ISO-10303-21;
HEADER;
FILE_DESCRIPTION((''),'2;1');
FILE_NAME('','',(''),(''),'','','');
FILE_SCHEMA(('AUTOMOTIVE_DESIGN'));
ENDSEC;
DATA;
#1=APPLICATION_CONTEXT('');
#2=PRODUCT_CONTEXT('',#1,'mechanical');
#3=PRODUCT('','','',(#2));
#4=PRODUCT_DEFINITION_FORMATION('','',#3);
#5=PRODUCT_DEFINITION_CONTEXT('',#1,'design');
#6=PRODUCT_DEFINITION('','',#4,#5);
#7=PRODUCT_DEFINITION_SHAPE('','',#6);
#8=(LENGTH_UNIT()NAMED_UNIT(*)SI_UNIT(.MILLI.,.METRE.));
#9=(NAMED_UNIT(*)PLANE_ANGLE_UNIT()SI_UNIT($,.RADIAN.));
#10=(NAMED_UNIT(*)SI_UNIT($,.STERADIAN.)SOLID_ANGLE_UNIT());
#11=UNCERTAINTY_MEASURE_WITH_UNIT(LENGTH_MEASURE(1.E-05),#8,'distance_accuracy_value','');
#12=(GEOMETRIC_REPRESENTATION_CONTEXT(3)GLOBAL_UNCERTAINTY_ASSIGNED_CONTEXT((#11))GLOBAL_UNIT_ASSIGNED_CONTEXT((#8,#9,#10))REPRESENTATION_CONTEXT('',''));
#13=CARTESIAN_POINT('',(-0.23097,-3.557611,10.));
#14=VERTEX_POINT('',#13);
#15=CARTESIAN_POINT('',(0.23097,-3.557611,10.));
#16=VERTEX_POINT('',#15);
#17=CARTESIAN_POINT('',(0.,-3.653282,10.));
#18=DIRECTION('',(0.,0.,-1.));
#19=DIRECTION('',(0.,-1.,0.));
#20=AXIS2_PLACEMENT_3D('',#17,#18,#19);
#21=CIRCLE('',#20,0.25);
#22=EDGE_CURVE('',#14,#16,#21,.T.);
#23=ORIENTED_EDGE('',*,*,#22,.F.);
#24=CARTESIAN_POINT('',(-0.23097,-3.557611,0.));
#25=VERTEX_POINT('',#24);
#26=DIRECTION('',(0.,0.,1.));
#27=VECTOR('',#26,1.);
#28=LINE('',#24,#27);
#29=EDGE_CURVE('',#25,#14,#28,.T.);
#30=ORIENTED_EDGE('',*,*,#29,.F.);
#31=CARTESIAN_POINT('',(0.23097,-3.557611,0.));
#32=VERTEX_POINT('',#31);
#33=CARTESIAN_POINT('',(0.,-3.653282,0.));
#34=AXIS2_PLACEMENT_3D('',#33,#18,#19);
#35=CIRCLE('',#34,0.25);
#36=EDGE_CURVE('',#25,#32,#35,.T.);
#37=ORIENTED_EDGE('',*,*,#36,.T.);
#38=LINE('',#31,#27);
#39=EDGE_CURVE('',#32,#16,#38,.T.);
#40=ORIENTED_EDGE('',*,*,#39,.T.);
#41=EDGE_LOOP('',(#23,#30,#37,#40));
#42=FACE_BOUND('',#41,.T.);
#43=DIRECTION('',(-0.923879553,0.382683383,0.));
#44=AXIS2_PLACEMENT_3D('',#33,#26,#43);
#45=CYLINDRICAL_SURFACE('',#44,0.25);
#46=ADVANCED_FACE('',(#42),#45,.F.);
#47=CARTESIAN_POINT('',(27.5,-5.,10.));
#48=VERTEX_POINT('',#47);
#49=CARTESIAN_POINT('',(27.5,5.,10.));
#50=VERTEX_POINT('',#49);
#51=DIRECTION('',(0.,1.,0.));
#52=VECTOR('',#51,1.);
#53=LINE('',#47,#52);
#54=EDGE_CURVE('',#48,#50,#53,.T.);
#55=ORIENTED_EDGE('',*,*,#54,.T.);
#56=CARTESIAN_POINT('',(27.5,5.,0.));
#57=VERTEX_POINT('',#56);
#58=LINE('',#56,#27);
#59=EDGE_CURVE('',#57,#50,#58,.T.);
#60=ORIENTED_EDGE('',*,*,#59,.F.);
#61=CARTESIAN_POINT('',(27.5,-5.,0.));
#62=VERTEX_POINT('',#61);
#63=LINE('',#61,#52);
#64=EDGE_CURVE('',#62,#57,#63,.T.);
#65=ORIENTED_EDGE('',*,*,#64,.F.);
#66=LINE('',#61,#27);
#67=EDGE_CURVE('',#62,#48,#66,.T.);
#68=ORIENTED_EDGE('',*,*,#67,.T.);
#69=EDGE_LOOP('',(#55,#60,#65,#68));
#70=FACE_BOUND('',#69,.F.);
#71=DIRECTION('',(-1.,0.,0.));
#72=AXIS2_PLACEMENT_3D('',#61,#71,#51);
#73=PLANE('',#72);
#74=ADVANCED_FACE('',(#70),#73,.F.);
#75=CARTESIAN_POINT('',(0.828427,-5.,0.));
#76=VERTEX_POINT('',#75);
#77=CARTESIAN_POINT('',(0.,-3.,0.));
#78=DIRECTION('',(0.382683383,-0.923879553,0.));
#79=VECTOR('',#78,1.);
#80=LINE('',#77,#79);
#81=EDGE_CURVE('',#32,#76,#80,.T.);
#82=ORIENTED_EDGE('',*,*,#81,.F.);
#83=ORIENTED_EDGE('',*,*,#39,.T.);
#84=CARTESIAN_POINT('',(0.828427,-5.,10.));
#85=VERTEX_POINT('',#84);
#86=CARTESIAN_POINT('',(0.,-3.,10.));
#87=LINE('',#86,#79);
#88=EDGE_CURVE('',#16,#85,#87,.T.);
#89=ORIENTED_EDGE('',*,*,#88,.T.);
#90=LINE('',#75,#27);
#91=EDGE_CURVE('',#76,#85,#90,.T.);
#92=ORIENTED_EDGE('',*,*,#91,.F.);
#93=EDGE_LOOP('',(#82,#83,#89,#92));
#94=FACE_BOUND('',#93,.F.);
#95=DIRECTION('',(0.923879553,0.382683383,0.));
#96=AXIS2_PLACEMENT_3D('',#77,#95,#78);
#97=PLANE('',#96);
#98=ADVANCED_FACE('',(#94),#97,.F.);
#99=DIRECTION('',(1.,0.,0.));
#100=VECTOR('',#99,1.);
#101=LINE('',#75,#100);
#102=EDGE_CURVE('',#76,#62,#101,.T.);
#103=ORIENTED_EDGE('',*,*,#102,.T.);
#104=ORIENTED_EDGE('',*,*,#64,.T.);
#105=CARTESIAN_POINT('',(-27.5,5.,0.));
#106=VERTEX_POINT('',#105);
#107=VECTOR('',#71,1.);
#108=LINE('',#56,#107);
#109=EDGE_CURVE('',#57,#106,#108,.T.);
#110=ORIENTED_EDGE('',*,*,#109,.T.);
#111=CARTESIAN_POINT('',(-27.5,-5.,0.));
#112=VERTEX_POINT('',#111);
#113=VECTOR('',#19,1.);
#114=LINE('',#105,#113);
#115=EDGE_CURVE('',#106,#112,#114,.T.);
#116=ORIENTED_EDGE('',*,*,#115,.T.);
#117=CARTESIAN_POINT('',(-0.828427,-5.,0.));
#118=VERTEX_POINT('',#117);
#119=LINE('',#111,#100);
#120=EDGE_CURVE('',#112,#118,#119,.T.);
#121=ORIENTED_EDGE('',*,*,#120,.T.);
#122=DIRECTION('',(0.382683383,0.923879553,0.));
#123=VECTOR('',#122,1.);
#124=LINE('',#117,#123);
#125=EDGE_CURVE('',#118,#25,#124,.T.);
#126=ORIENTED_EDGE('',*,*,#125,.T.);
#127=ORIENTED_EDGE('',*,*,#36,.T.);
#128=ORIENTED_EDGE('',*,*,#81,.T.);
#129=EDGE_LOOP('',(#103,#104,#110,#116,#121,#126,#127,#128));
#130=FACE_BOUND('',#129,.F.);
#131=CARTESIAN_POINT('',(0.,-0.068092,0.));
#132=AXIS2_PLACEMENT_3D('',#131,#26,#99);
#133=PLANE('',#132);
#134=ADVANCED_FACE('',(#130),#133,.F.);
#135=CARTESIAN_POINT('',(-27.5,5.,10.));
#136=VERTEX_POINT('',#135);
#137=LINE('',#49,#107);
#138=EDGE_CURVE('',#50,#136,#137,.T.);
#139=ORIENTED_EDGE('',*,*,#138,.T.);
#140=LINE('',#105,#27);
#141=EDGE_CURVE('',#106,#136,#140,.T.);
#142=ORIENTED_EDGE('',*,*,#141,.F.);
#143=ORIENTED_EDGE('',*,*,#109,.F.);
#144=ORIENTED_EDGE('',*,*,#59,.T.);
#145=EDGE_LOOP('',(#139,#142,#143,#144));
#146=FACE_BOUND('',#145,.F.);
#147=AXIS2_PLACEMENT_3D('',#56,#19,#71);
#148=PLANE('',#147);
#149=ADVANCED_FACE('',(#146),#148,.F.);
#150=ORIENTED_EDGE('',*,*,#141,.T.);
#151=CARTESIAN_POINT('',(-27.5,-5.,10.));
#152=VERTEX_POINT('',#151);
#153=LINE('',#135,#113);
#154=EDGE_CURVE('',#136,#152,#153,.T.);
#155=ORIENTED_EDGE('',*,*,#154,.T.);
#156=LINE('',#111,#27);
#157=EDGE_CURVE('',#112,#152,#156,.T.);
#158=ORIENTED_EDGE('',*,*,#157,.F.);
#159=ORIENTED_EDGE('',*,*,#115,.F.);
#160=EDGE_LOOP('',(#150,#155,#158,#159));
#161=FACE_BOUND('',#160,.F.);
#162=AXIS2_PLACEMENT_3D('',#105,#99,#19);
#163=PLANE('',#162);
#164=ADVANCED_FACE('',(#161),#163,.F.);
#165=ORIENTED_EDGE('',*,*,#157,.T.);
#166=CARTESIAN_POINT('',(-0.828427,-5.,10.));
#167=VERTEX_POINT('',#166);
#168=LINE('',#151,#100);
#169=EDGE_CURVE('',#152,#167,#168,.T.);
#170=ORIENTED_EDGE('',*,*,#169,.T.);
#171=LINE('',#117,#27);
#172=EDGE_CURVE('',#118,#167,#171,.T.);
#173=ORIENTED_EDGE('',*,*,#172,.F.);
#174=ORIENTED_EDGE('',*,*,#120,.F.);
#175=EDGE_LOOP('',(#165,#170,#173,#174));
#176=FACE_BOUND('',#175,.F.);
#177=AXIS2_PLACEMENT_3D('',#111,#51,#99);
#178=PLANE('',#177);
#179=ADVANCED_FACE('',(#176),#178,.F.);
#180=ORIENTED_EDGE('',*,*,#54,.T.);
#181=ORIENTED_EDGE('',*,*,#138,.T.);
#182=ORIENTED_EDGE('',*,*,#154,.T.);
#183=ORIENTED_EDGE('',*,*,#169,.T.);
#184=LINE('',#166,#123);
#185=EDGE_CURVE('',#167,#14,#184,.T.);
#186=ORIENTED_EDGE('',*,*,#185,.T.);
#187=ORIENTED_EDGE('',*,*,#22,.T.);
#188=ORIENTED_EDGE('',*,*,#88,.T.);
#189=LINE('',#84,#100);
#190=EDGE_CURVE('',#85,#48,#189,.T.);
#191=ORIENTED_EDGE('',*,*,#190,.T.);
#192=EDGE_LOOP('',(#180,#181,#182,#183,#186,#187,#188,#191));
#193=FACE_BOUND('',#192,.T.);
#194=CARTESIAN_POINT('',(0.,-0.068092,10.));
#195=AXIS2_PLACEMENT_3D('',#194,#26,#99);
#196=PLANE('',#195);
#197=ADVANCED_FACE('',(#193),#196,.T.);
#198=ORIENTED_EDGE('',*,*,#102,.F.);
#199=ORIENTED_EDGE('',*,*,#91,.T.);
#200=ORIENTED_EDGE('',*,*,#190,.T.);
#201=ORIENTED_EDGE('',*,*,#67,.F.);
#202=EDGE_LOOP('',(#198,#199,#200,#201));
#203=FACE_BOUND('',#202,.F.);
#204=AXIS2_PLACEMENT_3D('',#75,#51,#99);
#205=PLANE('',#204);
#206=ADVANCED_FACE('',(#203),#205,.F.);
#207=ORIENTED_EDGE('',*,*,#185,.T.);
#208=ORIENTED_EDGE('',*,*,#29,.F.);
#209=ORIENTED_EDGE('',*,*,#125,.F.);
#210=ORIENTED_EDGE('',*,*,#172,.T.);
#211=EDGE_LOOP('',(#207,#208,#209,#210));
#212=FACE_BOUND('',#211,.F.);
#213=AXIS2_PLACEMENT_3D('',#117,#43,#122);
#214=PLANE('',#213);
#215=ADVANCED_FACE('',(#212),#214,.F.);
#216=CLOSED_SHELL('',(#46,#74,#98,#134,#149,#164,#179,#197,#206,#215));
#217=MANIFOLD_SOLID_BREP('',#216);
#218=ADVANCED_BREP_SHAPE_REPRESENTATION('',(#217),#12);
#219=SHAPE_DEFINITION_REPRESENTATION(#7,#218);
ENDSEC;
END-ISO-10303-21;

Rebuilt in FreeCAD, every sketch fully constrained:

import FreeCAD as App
import Part
import Sketcher
Q = App.Units.Quantity


def edges_at(feature, points):
    """Names of the edges that pass closest to the given points."""
    edges = feature.Shape.Edges
    near = lambda p: min(range(len(edges)), key=lambda i: edges[i].distToShape(Part.Vertex(*p))[0])
    return sorted({f"Edge{near(p) + 1}" for p in points})


def add_polygon(sketch, points):
    """Adds a closed chain of lines whose ends are joined by coincident constraints."""
    first, n = sketch.GeometryCount, len(points)
    for a, b in zip(points, points[1:] + points[:1]):
        sketch.addGeometry(Part.LineSegment(App.Vector(*a, 0), App.Vector(*b, 0)), False)
    for i in range(n):
        sketch.addConstraint(Sketcher.Constraint("Coincident", first + i, 2, first + (i + 1) % n, 1))

doc = App.newDocument("Part")
params = doc.addObject("Spreadsheet::Sheet", "Params")
for row, (alias, value) in enumerate([
    ("sketch1_width", "55 mm"),
    ("sketch1_height", "10 mm"),
    ("pad1_length", "10 mm"),
    ("fillet_radius", "0.25 mm"),
], start=1):
    params.set(f"A{row}", alias)
    params.set(f"B{row}", "=" + value)
    params.setAlias(f"B{row}", alias)

body = doc.addObject("PartDesign::Body", "Body")

sketch1 = body.newObject("Sketcher::SketchObject", "Sketch")
sketch1.AttachmentSupport = (doc.getObject("XY_Plane"), [""])
sketch1.MapMode = "FlatFace"
add_polygon(sketch1, [(27.5, 5), (-27.5, 5), (-27.5, -5), (-0.8, -5), (0, -3), (0.8, -5), (27.5, -5)])
sketch1.addConstraint([
    Sketcher.Constraint("Horizontal", 0),
    Sketcher.Constraint("Vertical", 1),
    Sketcher.Constraint("Horizontal", 2),
    Sketcher.Constraint("Horizontal", 5),
    Sketcher.Constraint("Vertical", 6),
    Sketcher.Constraint("Symmetric", 0, 2, 5, 2, -1, 1),
    Sketcher.Constraint("Symmetric", 2, 2, 4, 2, -2),
    Sketcher.Constraint("PointOnObject", 3, 2, -2),
    Sketcher.Constraint("DistanceX", 0, 2, 0, 1, 55.0),
    Sketcher.Constraint("DistanceY", 1, 2, 1, 1, 10.0),
    Sketcher.Constraint("DistanceY", 3, 2, -1, 1, 3.0),
    Sketcher.Constraint("Angle", 3, Q("67.500003 deg")),
])
sketch1.setExpression("Constraints[15]", "Params.sketch1_width")
sketch1.setExpression("Constraints[16]", "Params.sketch1_height")
pad1 = body.newObject("PartDesign::Pad", "Pad")
pad1.Profile = sketch1
pad1.setExpression("Length", "Params.pad1_length")
doc.recompute()

fillet = body.newObject("PartDesign::Fillet", "Fillet")
fillet.Base = (pad1, edges_at(pad1, [(0, -3, 5)]))
fillet.setExpression("Radius", "Params.fillet_radius")

doc.recompute()
